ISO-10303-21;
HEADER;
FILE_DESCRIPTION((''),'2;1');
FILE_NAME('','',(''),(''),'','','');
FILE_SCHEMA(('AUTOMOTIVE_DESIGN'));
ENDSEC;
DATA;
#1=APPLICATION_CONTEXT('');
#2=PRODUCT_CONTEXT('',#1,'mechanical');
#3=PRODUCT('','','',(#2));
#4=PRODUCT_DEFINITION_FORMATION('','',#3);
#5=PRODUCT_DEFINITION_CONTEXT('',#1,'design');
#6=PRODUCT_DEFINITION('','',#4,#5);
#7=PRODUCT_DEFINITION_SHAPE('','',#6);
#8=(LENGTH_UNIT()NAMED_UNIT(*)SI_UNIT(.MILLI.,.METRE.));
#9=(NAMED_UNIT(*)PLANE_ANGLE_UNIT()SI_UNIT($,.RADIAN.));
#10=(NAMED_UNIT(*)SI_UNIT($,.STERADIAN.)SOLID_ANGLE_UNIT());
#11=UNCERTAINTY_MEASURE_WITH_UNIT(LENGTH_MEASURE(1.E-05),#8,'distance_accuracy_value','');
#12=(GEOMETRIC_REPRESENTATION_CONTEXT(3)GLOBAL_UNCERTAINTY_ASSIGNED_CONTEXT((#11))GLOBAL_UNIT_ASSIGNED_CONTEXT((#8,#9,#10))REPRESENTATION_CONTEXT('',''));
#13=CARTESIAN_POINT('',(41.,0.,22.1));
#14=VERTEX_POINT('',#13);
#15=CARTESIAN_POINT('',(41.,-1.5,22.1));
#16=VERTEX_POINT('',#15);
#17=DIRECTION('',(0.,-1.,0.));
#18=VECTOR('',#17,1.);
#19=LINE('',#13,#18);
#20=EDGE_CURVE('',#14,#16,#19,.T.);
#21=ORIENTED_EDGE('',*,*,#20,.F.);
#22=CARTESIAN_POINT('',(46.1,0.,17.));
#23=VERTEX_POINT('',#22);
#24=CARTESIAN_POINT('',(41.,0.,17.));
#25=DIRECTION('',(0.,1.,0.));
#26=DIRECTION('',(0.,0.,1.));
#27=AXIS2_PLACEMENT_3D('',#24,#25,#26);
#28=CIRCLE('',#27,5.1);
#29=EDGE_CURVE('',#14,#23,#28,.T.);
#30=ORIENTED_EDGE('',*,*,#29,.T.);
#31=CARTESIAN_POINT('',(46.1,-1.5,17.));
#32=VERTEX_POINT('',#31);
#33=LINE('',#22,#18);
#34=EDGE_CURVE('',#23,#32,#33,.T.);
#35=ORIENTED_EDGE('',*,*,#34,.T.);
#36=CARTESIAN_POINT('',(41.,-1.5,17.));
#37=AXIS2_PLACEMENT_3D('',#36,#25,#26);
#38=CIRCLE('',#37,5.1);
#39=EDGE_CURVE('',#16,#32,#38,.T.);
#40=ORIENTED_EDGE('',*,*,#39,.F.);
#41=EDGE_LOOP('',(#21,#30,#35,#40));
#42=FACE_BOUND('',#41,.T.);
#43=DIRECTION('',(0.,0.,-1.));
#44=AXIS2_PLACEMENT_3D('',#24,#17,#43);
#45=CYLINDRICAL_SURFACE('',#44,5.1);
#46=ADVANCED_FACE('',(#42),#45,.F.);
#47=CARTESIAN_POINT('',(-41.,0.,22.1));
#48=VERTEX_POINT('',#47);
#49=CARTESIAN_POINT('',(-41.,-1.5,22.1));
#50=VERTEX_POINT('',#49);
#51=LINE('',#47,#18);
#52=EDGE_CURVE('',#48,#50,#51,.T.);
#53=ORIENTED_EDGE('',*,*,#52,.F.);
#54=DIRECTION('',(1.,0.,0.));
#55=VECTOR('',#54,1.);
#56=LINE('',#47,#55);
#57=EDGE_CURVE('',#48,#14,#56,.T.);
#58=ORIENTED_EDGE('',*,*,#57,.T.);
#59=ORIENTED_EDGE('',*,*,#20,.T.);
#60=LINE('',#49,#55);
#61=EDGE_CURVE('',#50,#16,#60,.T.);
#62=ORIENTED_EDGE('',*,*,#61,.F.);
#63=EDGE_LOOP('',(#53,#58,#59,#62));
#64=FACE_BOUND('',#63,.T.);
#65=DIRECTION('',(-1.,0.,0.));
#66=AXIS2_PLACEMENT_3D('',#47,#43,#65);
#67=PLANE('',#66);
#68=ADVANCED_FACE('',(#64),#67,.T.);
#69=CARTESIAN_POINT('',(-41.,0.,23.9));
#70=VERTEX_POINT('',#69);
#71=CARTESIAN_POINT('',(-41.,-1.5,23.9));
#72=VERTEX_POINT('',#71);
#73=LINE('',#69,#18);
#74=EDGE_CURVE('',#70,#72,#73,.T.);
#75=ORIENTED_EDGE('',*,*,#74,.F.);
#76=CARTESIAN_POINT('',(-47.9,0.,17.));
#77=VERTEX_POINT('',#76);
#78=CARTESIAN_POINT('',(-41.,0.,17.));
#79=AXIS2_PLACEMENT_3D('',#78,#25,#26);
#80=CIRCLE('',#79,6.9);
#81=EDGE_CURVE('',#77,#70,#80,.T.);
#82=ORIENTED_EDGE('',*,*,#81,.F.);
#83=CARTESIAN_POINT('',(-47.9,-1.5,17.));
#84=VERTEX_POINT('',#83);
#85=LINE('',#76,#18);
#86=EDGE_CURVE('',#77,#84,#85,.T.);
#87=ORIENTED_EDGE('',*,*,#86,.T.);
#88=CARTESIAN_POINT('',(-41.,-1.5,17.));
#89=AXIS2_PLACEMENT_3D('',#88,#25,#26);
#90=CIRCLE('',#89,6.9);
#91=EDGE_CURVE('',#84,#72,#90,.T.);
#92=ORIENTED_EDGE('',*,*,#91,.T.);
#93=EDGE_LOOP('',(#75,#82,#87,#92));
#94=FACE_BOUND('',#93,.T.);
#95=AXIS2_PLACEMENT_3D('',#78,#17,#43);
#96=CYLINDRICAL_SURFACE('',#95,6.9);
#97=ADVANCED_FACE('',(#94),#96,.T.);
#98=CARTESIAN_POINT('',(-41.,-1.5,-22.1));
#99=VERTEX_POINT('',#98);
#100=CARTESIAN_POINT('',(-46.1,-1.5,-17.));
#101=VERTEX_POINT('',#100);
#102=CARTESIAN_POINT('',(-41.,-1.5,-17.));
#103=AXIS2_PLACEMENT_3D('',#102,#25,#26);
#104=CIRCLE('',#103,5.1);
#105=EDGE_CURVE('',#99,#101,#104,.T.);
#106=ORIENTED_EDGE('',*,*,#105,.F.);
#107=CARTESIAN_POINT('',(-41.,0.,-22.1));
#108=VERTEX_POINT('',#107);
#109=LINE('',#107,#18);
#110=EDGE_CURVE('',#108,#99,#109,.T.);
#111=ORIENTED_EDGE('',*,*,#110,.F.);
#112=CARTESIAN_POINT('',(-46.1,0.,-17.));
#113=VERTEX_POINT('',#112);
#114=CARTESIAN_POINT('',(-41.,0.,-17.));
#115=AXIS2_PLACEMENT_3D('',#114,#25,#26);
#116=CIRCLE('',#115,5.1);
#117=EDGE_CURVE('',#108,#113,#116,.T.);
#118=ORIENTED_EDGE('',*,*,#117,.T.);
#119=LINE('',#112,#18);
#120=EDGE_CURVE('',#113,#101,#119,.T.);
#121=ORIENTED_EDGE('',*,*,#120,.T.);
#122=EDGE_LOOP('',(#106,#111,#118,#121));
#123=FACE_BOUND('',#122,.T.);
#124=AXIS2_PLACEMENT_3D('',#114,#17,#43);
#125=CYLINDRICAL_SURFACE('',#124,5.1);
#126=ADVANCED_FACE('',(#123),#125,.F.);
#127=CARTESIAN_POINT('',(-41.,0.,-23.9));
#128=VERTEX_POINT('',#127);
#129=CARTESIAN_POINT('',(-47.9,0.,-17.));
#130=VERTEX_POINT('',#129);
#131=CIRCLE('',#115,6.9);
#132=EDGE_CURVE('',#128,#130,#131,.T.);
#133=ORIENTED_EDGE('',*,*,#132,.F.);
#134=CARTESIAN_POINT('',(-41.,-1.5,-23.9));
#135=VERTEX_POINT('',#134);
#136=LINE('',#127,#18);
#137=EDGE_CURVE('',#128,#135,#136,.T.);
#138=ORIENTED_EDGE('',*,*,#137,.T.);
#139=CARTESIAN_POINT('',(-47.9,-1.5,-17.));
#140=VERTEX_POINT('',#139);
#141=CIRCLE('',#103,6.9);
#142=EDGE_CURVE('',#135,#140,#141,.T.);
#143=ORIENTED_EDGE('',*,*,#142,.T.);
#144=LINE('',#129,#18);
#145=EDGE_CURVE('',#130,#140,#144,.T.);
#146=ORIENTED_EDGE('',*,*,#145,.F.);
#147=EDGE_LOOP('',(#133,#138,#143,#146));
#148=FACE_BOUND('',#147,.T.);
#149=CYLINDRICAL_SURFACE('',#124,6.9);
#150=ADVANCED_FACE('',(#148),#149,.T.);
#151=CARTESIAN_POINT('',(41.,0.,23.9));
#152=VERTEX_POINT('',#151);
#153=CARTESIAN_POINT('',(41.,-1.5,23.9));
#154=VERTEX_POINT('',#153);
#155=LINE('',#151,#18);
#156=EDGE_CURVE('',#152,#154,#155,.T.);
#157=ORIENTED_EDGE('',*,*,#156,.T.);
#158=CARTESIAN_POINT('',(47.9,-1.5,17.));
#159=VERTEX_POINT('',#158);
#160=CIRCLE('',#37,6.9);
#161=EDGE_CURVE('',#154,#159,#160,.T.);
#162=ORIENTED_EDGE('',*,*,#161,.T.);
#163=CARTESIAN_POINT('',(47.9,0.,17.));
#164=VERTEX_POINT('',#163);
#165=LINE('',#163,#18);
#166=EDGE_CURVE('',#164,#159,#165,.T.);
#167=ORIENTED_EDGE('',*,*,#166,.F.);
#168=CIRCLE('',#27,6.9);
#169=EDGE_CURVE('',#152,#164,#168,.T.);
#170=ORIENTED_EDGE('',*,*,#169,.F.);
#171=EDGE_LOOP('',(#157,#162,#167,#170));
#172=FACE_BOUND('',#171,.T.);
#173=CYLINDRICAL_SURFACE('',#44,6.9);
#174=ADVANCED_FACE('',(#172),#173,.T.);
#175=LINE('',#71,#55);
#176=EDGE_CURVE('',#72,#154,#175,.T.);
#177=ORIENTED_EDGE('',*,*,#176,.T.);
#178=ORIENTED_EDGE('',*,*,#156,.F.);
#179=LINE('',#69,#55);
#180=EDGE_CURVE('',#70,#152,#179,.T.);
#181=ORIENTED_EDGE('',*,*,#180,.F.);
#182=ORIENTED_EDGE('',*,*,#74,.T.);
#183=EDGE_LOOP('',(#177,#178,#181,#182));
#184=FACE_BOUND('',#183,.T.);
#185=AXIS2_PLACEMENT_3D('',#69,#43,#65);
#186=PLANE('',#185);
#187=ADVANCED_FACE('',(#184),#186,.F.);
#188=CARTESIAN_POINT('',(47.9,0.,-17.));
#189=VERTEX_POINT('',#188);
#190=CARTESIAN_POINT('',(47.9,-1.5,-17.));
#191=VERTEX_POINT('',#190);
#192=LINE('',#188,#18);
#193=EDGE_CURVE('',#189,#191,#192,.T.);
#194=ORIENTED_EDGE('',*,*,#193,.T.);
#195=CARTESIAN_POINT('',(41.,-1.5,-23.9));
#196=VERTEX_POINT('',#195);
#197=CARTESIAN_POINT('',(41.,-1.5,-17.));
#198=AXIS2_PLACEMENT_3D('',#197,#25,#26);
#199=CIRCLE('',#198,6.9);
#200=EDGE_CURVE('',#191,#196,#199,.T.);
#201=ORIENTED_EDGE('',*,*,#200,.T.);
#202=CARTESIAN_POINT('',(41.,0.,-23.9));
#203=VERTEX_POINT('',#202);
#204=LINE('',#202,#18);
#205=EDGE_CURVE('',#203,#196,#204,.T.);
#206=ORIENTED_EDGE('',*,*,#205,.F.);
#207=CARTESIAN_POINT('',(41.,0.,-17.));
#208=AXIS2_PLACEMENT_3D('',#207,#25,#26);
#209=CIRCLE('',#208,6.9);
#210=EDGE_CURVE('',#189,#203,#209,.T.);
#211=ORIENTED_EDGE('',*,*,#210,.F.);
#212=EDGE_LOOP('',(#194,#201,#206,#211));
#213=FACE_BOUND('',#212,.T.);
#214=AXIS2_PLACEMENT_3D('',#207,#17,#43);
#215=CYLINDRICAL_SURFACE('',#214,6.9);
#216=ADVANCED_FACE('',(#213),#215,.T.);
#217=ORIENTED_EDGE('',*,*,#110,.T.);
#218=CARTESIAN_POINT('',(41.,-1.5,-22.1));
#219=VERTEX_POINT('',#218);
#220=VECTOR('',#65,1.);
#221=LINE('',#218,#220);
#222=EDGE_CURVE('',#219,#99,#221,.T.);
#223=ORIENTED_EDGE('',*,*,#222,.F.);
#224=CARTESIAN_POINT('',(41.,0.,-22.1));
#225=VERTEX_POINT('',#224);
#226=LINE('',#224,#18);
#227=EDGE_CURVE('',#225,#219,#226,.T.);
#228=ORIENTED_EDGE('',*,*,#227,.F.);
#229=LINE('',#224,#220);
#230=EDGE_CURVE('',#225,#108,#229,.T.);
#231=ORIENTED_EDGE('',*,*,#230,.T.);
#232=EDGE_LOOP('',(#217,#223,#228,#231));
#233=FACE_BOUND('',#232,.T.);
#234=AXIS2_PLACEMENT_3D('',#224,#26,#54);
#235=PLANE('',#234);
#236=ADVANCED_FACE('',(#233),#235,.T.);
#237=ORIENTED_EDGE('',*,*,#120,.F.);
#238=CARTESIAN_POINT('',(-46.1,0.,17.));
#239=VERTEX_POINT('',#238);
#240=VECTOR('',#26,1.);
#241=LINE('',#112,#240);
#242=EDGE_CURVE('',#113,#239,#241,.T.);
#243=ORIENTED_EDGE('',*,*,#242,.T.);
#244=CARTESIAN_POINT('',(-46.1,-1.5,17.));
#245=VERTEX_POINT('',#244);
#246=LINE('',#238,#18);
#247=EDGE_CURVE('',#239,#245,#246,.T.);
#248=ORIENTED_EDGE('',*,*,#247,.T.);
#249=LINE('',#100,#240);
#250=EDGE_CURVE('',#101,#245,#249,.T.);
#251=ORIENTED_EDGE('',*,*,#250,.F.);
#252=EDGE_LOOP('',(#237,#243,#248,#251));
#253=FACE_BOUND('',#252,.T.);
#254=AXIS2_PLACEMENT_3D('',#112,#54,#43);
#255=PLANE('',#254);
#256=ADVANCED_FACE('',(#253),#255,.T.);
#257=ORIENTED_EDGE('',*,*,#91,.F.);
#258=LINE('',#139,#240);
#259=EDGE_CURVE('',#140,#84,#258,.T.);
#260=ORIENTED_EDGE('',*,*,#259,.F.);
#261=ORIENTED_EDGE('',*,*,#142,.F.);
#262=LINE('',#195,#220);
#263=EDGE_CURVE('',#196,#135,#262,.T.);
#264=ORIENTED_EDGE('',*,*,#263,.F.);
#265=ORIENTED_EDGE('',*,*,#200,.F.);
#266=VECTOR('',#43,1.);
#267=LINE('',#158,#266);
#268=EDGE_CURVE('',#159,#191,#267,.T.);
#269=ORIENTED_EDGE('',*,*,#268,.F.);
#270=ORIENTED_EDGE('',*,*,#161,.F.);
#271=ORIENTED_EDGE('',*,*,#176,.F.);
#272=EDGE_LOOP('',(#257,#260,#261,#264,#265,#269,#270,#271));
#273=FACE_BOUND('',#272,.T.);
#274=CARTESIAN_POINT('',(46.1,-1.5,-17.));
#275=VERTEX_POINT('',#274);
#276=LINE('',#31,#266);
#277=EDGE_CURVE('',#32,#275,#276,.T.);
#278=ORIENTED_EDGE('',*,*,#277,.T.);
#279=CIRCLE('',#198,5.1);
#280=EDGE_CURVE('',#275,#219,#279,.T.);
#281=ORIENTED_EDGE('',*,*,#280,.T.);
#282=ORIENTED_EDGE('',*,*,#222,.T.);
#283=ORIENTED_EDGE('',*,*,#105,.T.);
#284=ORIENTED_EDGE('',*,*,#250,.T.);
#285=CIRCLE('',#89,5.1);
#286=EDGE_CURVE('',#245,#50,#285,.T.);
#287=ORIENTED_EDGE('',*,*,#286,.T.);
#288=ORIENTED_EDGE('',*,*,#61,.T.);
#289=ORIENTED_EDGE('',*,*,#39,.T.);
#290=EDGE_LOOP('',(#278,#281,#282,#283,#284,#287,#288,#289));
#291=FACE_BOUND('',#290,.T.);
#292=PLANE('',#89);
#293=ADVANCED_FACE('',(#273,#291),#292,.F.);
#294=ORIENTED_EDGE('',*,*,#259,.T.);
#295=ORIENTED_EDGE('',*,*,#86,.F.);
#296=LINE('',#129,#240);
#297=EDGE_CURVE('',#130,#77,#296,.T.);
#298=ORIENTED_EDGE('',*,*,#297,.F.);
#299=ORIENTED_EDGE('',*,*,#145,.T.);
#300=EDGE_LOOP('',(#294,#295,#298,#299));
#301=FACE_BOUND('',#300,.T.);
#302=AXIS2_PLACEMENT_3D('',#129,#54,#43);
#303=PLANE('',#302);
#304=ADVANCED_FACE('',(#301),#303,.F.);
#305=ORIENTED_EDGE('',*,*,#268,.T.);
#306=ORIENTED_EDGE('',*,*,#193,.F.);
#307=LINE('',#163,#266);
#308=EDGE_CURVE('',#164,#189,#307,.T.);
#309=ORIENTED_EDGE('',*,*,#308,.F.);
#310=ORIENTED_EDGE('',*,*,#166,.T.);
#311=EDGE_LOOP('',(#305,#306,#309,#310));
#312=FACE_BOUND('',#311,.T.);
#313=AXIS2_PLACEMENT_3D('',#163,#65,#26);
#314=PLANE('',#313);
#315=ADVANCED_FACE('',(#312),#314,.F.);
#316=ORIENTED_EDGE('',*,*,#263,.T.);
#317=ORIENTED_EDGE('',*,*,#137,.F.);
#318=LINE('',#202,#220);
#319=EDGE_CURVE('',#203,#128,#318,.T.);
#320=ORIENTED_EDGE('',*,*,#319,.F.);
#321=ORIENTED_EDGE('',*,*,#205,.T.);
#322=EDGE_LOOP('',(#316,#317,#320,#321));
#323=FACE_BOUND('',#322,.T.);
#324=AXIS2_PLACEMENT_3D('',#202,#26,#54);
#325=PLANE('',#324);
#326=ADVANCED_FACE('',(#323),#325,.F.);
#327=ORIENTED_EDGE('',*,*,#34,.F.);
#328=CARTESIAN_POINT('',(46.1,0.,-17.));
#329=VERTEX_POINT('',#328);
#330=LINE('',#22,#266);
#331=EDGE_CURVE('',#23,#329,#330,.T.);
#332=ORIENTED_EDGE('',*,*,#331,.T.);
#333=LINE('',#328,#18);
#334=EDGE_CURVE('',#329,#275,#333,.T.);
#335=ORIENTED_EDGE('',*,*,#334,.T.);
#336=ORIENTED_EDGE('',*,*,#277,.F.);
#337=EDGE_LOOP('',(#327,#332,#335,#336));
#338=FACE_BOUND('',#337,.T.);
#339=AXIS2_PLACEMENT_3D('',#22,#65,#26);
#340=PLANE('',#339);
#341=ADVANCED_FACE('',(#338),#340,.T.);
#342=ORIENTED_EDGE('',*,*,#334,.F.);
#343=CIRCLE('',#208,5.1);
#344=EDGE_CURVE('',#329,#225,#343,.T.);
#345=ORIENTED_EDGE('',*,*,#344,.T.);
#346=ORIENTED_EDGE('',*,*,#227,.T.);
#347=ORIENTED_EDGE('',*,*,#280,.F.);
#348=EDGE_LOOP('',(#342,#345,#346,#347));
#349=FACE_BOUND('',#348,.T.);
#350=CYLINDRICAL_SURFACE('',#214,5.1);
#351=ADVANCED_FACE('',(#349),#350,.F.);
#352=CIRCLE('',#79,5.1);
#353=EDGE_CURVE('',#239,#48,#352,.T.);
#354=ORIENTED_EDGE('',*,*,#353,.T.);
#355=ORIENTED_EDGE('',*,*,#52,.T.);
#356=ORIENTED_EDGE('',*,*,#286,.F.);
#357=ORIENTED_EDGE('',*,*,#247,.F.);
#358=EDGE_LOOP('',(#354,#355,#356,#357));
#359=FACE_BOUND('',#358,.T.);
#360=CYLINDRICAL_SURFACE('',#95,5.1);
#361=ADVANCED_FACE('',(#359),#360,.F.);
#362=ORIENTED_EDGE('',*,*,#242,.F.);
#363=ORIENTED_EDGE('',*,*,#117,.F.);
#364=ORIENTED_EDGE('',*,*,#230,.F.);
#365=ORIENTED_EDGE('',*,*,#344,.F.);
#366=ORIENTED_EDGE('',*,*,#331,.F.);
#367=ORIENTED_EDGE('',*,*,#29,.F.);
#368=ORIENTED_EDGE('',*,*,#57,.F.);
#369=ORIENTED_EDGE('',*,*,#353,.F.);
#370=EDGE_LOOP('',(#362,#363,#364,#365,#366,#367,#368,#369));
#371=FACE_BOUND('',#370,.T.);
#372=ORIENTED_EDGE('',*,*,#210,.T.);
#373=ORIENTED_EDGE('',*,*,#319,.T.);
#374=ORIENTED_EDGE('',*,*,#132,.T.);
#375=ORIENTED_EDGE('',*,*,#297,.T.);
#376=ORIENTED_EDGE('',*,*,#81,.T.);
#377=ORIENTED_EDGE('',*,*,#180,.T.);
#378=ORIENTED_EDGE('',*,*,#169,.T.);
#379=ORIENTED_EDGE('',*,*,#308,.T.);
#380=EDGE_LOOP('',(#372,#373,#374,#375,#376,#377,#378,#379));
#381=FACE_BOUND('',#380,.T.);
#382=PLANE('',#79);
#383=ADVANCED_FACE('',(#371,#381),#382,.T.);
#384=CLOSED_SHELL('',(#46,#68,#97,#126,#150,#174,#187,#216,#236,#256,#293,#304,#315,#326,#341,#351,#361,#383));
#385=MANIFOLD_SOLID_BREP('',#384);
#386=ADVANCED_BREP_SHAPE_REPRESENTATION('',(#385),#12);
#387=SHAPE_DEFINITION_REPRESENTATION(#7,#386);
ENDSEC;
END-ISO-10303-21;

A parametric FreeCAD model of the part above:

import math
import FreeCAD as App
import Part
import Sketcher
from FreeCAD import Vector

doc = App.newDocument("Part")
body = doc.addObject("PartDesign::Body", "Body")

sketch1 = body.newObject("Sketcher::SketchObject", "Sketch")
sketch1.AttachmentSupport = (doc.getObject("XZ_Plane"), [""])
sketch1.MapMode = "FlatFace"
sketch1.AttachmentOffset = App.Placement(Vector(0, 0, 1.5), App.Rotation())
sketch1.addGeometry(Part.LineSegment(Vector(-41, 23.9, 0), Vector(41, 23.9, 0)), False)
sketch1.addGeometry(Part.ArcOfCircle(Part.Circle(Vector(41, 17, 0), Vector(0, 0, 1), 6.9), math.radians(0), math.radians(90)), False)
sketch1.addGeometry(Part.LineSegment(Vector(47.9, 17, 0), Vector(47.9, -17, 0)), False)
sketch1.addGeometry(Part.ArcOfCircle(Part.Circle(Vector(41, -17, 0), Vector(0, 0, 1), 6.9), math.radians(-90), math.radians(0)), False)
sketch1.addGeometry(Part.LineSegment(Vector(41, -23.9, 0), Vector(-41, -23.9, 0)), False)
sketch1.addGeometry(Part.ArcOfCircle(Part.Circle(Vector(-41, -17, 0), Vector(0, 0, 1), 6.9), math.radians(-180), math.radians(-90)), False)
sketch1.addGeometry(Part.LineSegment(Vector(-47.9, -17, 0), Vector(-47.9, 17, 0)), False)
sketch1.addGeometry(Part.ArcOfCircle(Part.Circle(Vector(-41, 17, 0), Vector(0, 0, 1), 6.9), math.radians(90), math.radians(180)), False)
sketch1.addGeometry(Part.LineSegment(Vector(41, 22.1, 0), Vector(-41, 22.1, 0)), False)
sketch1.addGeometry(Part.ArcOfCircle(Part.Circle(Vector(-41, 17, 0), Vector(0, 0, 1), 5.1), math.radians(90), math.radians(180)), False)
sketch1.addGeometry(Part.LineSegment(Vector(-46.1, 17, 0), Vector(-46.1, -17, 0)), False)
sketch1.addGeometry(Part.ArcOfCircle(Part.Circle(Vector(-41, -17, 0), Vector(0, 0, 1), 5.1), math.radians(180), math.radians(270)), False)
sketch1.addGeometry(Part.LineSegment(Vector(-41, -22.1, 0), Vector(41, -22.1, 0)), False)
sketch1.addGeometry(Part.ArcOfCircle(Part.Circle(Vector(41, -17, 0), Vector(0, 0, 1), 5.1), math.radians(-90), math.radians(0)), False)
sketch1.addGeometry(Part.LineSegment(Vector(46.1, -17, 0), Vector(46.1, 17, 0)), False)
sketch1.addGeometry(Part.ArcOfCircle(Part.Circle(Vector(41, 17, 0), Vector(0, 0, 1), 5.1), math.radians(0), math.radians(90)), False)
sketch1.addConstraint(Sketcher.Constraint("Tangent", 0, 2, 1, 2))
sketch1.addConstraint(Sketcher.Constraint("Tangent", 1, 1, 2, 1))
sketch1.addConstraint(Sketcher.Constraint("Tangent", 2, 2, 3, 2))
sketch1.addConstraint(Sketcher.Constraint("Tangent", 3, 1, 4, 1))
sketch1.addConstraint(Sketcher.Constraint("Tangent", 4, 2, 5, 2))
sketch1.addConstraint(Sketcher.Constraint("Tangent", 5, 1, 6, 1))
sketch1.addConstraint(Sketcher.Constraint("Tangent", 6, 2, 7, 2))
sketch1.addConstraint(Sketcher.Constraint("Tangent", 7, 1, 0, 1))
sketch1.addConstraint(Sketcher.Constraint("Tangent", 8, 2, 9, 1))
sketch1.addConstraint(Sketcher.Constraint("Tangent", 9, 2, 10, 1))
sketch1.addConstraint(Sketcher.Constraint("Tangent", 10, 2, 11, 1))
sketch1.addConstraint(Sketcher.Constraint("Tangent", 11, 2, 12, 1))
sketch1.addConstraint(Sketcher.Constraint("Tangent", 12, 2, 13, 1))
sketch1.addConstraint(Sketcher.Constraint("Tangent", 13, 2, 14, 1))
sketch1.addConstraint(Sketcher.Constraint("Tangent", 14, 2, 15, 1))
sketch1.addConstraint(Sketcher.Constraint("Tangent", 15, 2, 8, 1))
sketch1.addConstraint(Sketcher.Constraint("Horizontal", 0))
sketch1.addConstraint(Sketcher.Constraint("Vertical", 2))
sketch1.addConstraint(Sketcher.Constraint("Horizontal", 4))
sketch1.addConstraint(Sketcher.Constraint("Vertical", 6))
sketch1.addConstraint(Sketcher.Constraint("Horizontal", 8))
sketch1.addConstraint(Sketcher.Constraint("Vertical", 10))
sketch1.addConstraint(Sketcher.Constraint("Horizontal", 12))
sketch1.addConstraint(Sketcher.Constraint("Vertical", 14))
sketch1.addConstraint(Sketcher.Constraint("Coincident", 9, 3, 7, 3))
sketch1.addConstraint(Sketcher.Constraint("Coincident", 11, 3, 5, 3))
sketch1.addConstraint(Sketcher.Constraint("Coincident", 13, 3, 3, 3))
sketch1.addConstraint(Sketcher.Constraint("Equal", 1, 3))
sketch1.addConstraint(Sketcher.Constraint("Equal", 3, 5))
sketch1.addConstraint(Sketcher.Constraint("Equal", 5, 7))
sketch1.addConstraint(Sketcher.Constraint("Equal", 13, 15))
sketch1.addConstraint(Sketcher.Constraint("Symmetric", 1, 3, 5, 3, -1, 1))
sketch1.addConstraint(Sketcher.Constraint("Radius", 1, 6.9))
sketch1.addConstraint(Sketcher.Constraint("Radius", 9, 5.1))
sketch1.addConstraint(Sketcher.Constraint("DistanceX", 0, 1, 0, 2, 82.0))
sketch1.addConstraint(Sketcher.Constraint("DistanceY", 2, 2, 2, 1, 34.0))
pad1 = body.newObject("PartDesign::Pad", "Pad")
pad1.Profile = sketch1
pad1.Length = 1.5
pad1.Reversed = True

doc.recompute()
